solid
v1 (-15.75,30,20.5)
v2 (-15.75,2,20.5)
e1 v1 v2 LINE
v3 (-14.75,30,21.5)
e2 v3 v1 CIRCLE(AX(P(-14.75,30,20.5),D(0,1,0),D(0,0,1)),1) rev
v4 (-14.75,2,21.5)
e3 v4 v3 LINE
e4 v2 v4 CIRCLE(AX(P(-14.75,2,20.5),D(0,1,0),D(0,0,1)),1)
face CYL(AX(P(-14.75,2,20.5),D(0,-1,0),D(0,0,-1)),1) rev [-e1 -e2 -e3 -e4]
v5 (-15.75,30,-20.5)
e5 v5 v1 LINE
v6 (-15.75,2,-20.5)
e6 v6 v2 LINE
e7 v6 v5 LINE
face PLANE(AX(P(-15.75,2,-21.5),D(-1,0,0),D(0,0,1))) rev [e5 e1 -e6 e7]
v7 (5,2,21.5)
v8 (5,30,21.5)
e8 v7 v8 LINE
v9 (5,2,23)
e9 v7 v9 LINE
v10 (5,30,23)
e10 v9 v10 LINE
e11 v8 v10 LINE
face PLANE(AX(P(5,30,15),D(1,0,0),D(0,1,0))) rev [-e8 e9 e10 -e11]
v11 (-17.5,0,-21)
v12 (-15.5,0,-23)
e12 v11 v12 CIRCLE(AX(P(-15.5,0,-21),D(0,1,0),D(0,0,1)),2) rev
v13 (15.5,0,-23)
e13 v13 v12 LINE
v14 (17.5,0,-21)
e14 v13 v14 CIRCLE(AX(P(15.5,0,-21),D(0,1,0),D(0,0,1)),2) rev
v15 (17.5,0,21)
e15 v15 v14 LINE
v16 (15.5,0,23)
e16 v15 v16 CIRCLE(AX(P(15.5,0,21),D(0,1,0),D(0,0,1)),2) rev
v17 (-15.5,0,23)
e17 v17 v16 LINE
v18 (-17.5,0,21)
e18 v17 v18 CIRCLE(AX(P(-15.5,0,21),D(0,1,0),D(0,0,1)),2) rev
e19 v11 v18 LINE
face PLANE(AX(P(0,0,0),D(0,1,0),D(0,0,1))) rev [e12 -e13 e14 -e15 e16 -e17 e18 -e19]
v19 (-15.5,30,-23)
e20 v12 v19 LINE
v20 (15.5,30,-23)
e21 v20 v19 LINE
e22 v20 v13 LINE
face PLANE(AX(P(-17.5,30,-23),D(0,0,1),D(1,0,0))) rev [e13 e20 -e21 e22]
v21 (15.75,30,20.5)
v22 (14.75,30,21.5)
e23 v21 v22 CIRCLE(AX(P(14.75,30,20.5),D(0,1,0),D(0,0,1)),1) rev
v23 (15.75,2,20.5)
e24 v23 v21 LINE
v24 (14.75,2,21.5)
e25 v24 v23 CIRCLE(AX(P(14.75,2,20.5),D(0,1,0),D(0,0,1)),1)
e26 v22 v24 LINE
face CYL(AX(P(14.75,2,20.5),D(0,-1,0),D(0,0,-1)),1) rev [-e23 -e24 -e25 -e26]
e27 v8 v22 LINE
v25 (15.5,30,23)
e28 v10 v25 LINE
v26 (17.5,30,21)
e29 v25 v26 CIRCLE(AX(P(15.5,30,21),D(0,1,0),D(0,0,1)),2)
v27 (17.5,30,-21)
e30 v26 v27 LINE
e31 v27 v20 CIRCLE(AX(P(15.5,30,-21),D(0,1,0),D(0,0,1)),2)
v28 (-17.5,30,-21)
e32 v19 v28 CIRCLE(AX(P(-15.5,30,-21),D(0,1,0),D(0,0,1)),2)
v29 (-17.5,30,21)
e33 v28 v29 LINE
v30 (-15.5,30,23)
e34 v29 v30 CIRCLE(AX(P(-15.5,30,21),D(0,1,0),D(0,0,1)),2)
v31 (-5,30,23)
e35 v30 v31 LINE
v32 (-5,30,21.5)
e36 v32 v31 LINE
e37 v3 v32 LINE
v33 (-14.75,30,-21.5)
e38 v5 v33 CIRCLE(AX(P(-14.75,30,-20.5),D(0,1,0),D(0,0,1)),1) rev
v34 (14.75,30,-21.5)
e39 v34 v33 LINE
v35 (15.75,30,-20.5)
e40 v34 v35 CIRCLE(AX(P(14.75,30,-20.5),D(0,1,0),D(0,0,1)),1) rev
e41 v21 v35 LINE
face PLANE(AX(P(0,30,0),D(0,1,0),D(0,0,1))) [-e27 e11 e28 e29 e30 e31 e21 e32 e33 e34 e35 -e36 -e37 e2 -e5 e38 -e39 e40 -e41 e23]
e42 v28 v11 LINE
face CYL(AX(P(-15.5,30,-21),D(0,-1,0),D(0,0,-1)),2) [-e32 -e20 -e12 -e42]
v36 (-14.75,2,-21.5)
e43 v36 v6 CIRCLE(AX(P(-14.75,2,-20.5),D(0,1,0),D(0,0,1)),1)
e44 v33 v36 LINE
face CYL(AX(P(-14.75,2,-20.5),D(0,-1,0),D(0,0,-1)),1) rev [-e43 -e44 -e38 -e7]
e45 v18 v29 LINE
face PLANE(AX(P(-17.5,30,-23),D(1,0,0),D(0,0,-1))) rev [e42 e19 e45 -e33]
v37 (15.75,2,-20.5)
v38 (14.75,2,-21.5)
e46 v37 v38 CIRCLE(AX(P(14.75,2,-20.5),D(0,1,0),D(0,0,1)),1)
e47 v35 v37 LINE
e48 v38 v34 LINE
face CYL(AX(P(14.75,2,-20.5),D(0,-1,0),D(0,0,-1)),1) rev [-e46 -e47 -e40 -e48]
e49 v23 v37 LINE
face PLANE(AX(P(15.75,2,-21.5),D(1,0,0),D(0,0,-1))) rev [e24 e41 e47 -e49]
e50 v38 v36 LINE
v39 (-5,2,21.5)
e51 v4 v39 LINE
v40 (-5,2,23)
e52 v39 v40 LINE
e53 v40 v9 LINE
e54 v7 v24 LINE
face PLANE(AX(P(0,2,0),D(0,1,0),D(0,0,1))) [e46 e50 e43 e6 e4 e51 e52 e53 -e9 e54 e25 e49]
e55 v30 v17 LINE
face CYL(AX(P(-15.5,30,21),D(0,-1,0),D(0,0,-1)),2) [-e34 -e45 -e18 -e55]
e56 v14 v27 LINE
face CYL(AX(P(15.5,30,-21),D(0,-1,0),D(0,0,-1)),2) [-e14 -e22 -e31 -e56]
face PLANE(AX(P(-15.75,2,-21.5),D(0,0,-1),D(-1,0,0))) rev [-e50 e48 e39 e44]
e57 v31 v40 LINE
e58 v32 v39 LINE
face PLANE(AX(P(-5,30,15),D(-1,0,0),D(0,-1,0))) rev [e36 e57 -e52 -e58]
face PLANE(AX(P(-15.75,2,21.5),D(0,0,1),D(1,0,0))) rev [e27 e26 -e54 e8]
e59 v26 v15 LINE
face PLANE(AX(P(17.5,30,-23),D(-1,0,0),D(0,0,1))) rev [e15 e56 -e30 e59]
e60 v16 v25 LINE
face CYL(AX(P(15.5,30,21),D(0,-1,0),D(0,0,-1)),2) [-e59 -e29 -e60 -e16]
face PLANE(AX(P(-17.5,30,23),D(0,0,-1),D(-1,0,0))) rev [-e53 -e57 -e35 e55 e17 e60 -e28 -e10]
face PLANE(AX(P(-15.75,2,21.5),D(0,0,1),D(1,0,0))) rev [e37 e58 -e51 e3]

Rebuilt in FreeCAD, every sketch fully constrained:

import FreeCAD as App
import Part
import Sketcher

V = App.Vector
Q = App.Units.Quantity


def edges_at(feature, points):
    """Names of the edges that pass closest to the given points."""
    edges = feature.Shape.Edges
    near = lambda p: min(range(len(edges)), key=lambda i: edges[i].distToShape(Part.Vertex(*p))[0])
    return sorted({f"Edge{near(p) + 1}" for p in points})

doc = App.newDocument("Part")
body = doc.addObject("PartDesign::Body", "Body")

sketch1 = body.newObject("Sketcher::SketchObject", "Sketch")
sketch1.AttachmentSupport = (doc.getObject("XZ_Plane"), [""])
sketch1.MapMode = "FlatFace"
sketch1.addGeometry([
    Part.LineSegment(V(-17.5, -23, 0), V(-17.5, 23, 0)),
    Part.LineSegment(V(-17.5, 23, 0), V(17.5, 23, 0)),
    Part.LineSegment(V(17.5, 23, 0), V(17.5, -23, 0)),
    Part.LineSegment(V(17.5, -23, 0), V(-17.5, -23, 0)),
], False)
sketch1.addConstraint([
    Sketcher.Constraint("Coincident", 0, 2, 1, 1),
    Sketcher.Constraint("Coincident", 1, 2, 2, 1),
    Sketcher.Constraint("Coincident", 2, 2, 3, 1),
    Sketcher.Constraint("Coincident", 3, 2, 0, 1),
    Sketcher.Constraint("Vertical", 0),
    Sketcher.Constraint("Horizontal", 1),
    Sketcher.Constraint("Vertical", 2),
    Sketcher.Constraint("Horizontal", 3),
    Sketcher.Constraint("Symmetric", 0, 2, 2, 2, -1, 1),
    Sketcher.Constraint("DistanceX", 1, 1, 1, 2, Q("35 mm")),
    Sketcher.Constraint("DistanceY", 0, 1, 0, 2, Q("46 mm")),
])
pad1 = body.newObject("PartDesign::Pad", "Pad")
pad1.Profile = sketch1
pad1.Length = 30
pad1.Reversed = True

sketch2 = body.newObject("Sketcher::SketchObject", "Sketch001")
sketch2.AttachmentSupport = (doc.getObject("XZ_Plane"), [""])
sketch2.MapMode = "FlatFace"
sketch2.AttachmentOffset = App.Placement(V(0, 0, -30), App.Rotation())
sketch2.addGeometry([
    Part.LineSegment(V(-15.75, -21.5, 0), V(-15.75, 21.5, 0)),
    Part.LineSegment(V(-15.75, 21.5, 0), V(15.75, 21.5, 0)),
    Part.LineSegment(V(15.75, 21.5, 0), V(15.75, -21.5, 0)),
    Part.LineSegment(V(15.75, -21.5, 0), V(-15.75, -21.5, 0)),
], False)
sketch2.addConstraint([
    Sketcher.Constraint("Coincident", 0, 2, 1, 1),
    Sketcher.Constraint("Coincident", 1, 2, 2, 1),
    Sketcher.Constraint("Coincident", 2, 2, 3, 1),
    Sketcher.Constraint("Coincident", 3, 2, 0, 1),
    Sketcher.Constraint("Vertical", 0),
    Sketcher.Constraint("Horizontal", 1),
    Sketcher.Constraint("Vertical", 2),
    Sketcher.Constraint("Horizontal", 3),
    Sketcher.Constraint("Symmetric", 0, 2, 2, 2, -1, 1),
    Sketcher.Constraint("DistanceY", 0, 1, 0, 2, Q("43 mm")),
    Sketcher.Constraint("DistanceX", 1, 1, 1, 2, Q("31.5 mm")),
])
pocket1 = body.newObject("PartDesign::Pocket", "Pocket")
pocket1.Profile = sketch2
pocket1.Length = 28
pocket1.Reversed = True
doc.recompute()

fillet = body.newObject("PartDesign::Fillet", "Fillet")
fillet.Base = (pocket1, edges_at(pocket1, [
    (17.5, 15, 23),
    (-17.5, 15, 23),
    (-17.5, 15, -23),
    (17.5, 15, -23),
]))
fillet.Radius = 2
doc.recompute()

fillet2 = body.newObject("PartDesign::Fillet", "Fillet001")
fillet2.Base = (fillet, edges_at(fillet, [
    (15.75, 16, -21.5),
    (15.75, 16, 21.5),
    (-15.75, 16, 21.5),
    (-15.75, 16, -21.5),
]))
fillet2.Radius = 1

sketch3 = body.newObject("Sketcher::SketchObject", "Sketch002")
sketch3.AttachmentSupport = (doc.getObject("XY_Plane"), [""])
sketch3.MapMode = "FlatFace"
sketch3.AttachmentOffset = App.Placement(V(0, 0, 23), App.Rotation())
sketch3.addGeometry([
    Part.LineSegment(V(-5, 30, 0), V(-5, 2, 0)),
    Part.LineSegment(V(-5, 2, 0), V(5, 2, 0)),
    Part.LineSegment(V(5, 2, 0), V(5, 30, 0)),
    Part.LineSegment(V(5, 30, 0), V(-5, 30, 0)),
], False)
sketch3.addConstraint([
    Sketcher.Constraint("Coincident", 0, 2, 1, 1),
    Sketcher.Constraint("Coincident", 1, 2, 2, 1),
    Sketcher.Constraint("Coincident", 2, 2, 3, 1),
    Sketcher.Constraint("Coincident", 3, 2, 0, 1),
    Sketcher.Constraint("Vertical", 0),
    Sketcher.Constraint("Horizontal", 1),
    Sketcher.Constraint("Vertical", 2),
    Sketcher.Constraint("Horizontal", 3),
    Sketcher.Constraint("DistanceX", 1, 1, 1, 2, Q("10 mm")),
    Sketcher.Constraint("DistanceY", 0, 2, 0, 1, Q("28 mm")),
    Sketcher.Constraint("DistanceX", 0, 2, -1, 1, Q("5 mm")),
    Sketcher.Constraint("DistanceY", -1, 1, 0, 2, Q("2 mm")),
])
pocket2 = body.newObject("PartDesign::Pocket", "Pocket001")
pocket2.Profile = sketch3
pocket2.Length = 8

doc.recompute()
